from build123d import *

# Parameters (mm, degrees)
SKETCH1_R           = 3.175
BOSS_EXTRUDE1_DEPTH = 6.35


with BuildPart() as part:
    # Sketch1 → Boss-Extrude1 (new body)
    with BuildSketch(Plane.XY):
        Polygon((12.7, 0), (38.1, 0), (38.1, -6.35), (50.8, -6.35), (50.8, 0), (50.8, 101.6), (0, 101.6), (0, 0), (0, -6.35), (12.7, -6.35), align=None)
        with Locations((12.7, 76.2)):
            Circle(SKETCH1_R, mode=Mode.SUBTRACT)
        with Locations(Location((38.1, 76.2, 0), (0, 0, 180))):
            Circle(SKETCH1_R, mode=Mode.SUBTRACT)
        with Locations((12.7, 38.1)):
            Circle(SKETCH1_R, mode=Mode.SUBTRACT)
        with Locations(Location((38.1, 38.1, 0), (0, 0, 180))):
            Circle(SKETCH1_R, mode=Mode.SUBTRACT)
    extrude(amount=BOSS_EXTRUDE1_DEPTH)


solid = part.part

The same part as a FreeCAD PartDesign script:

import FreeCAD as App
import Part
import Sketcher

V = App.Vector
Q = App.Units.Quantity

doc = App.newDocument("Part")
params = doc.addObject("Spreadsheet::Sheet", "Params")
for row, (alias, value) in enumerate([
    ("sketch1_diameter", "0.25 in"),
    ("sketch1_width", "1 in"),
    ("sketch1_width2", "2 in"),
    ("sketch1_height", "0.25 in"),
    ("pad1_length", "0.25 in"),
], start=1):
    params.set(f"A{row}", alias)
    params.set(f"B{row}", "=" + value)
    params.setAlias(f"B{row}", alias)

body = doc.addObject("PartDesign::Body", "Body")

# Sketch on XY plane
sketch1 = body.newObject("Sketcher::SketchObject", "Sketch")
sketch1.AttachmentSupport = (doc.getObject("XY_Plane"), [""])
sketch1.MapMode = "FlatFace"
sketch1.addGeometry([
    Part.LineSegment(V(12.7, 0, 0), V(38.1, 0, 0)),  # 0
    Part.LineSegment(V(38.1, 0, 0), V(38.1, -6.3, 0)),  # 1
    Part.LineSegment(V(38.1, -6.3, 0), V(50.8, -6.3, 0)),  # 2
    Part.LineSegment(V(50.8, -6.3, 0), V(50.8, 101.6, 0)),  # 3
    Part.LineSegment(V(50.8, 101.6, 0), V(0, 101.6, 0)),  # 4
    Part.LineSegment(V(0, 101.6, 0), V(0, -6.3, 0)),  # 5
    Part.LineSegment(V(0, -6.3, 0), V(12.7, -6.3, 0)),  # 6
    Part.LineSegment(V(12.7, -6.3, 0), V(12.7, 0, 0)),  # 7
    Part.Circle(V(12.7, 38.1, 0), V(0, 0, 1), 3.2),  # 8
    Part.Circle(V(38.1, 38.1, 0), V(0, 0, 1), 3.2),  # 9
    Part.Circle(V(12.7, 76.2, 0), V(0, 0, 1), 3.2),  # 10
    Part.Circle(V(38.1, 76.2, 0), V(0, 0, 1), 3.2),  # 11
], False)
sketch1.addConstraint([
    Sketcher.Constraint("Coincident", 0, 2, 1, 1),
    Sketcher.Constraint("Coincident", 1, 2, 2, 1),
    Sketcher.Constraint("Coincident", 2, 2, 3, 1),
    Sketcher.Constraint("Coincident", 3, 2, 4, 1),
    Sketcher.Constraint("Coincident", 4, 2, 5, 1),
    Sketcher.Constraint("Coincident", 5, 2, 6, 1),
    Sketcher.Constraint("Coincident", 6, 2, 7, 1),
    Sketcher.Constraint("Coincident", 7, 2, 0, 1),
    Sketcher.Constraint("Horizontal", 0),
    Sketcher.Constraint("Vertical", 1),
    Sketcher.Constraint("Horizontal", 2),
    Sketcher.Constraint("Vertical", 3),
    Sketcher.Constraint("Horizontal", 4),
    Sketcher.Constraint("Vertical", 5),
    Sketcher.Constraint("Horizontal", 6),
    Sketcher.Constraint("Vertical", 7),
    Sketcher.Constraint("Equal", 8, 9),
    Sketcher.Constraint("Equal", 9, 10),
    Sketcher.Constraint("Equal", 10, 11),
    Sketcher.Constraint("PointOnObject", 0, 2, -1),
    Sketcher.Constraint("PointOnObject", 4, 2, -2),
    Sketcher.Constraint("Horizontal", 8, 3, 9, 3),
    Sketcher.Constraint("Horizontal", 10, 3, 11, 3),
    Sketcher.Constraint("Horizontal", 2, 2, 5, 2),
    Sketcher.Constraint("Vertical", 8, 3, 10, 3),
    Sketcher.Constraint("Vertical", 9, 3, 11, 3),
    Sketcher.Constraint("Vertical", 11, 3, 0, 2),
    Sketcher.Constraint("Vertical", 10, 3, 6, 2),
    Sketcher.Constraint("Equal", 2, 6),
    Sketcher.Constraint("Diameter", 8, Q("0.25 in")),
    Sketcher.Constraint("DistanceX", 0, 1, 0, 2, Q("1 in")),
    Sketcher.Constraint("DistanceX", 4, 2, 4, 1, Q("2 in")),
    Sketcher.Constraint("DistanceY", -1, 1, 10, 3, Q("3 in")),
    Sketcher.Constraint("DistanceY", -1, 1, 3, 2, Q("4 in")),
    Sketcher.Constraint("DistanceY", 1, 2, 1, 1, Q("0.25 in")),
    Sketcher.Constraint("DistanceY", -1, 1, 8, 3, Q("1.5 in")),
])
sketch1.setExpression("Constraints[29]", "Params.sketch1_diameter")
sketch1.setExpression("Constraints[30]", "Params.sketch1_width")
sketch1.setExpression("Constraints[31]", "Params.sketch1_width2")
sketch1.setExpression("Constraints[34]", "Params.sketch1_height")
pad1 = body.newObject("PartDesign::Pad", "Pad")
pad1.Profile = sketch1
pad1.setExpression("Length", "Params.pad1_length")

doc.recompute()
